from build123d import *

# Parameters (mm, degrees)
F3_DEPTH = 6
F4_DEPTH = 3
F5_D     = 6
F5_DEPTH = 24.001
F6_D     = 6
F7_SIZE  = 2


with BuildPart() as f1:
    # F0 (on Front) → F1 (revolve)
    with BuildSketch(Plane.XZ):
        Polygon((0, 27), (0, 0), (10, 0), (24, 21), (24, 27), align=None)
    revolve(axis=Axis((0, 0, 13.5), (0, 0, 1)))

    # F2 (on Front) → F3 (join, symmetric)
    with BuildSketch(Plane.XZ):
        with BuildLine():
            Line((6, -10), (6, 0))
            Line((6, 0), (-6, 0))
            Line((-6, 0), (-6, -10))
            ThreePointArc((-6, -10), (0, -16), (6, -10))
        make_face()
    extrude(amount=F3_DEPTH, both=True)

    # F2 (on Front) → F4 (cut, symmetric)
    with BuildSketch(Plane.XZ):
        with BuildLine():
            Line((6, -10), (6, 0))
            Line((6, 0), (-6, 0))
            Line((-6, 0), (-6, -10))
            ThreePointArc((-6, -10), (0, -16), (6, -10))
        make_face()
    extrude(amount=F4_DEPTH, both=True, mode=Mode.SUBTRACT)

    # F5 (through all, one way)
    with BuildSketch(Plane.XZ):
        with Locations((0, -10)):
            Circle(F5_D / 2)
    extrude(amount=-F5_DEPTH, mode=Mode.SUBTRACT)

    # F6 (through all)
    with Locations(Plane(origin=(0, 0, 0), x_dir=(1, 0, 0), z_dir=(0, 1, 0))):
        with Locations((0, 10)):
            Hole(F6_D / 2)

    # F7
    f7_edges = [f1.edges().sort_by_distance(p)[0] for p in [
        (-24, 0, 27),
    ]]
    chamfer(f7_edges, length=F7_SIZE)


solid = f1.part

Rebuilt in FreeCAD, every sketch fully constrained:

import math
import FreeCAD as App
import Part
import Sketcher
from FreeCAD import Vector
Q = App.Units.Quantity


def edges_at(feature, points):
    """Names of the edges that pass closest to the given points."""
    edges = feature.Shape.Edges
    near = lambda p: min(range(len(edges)), key=lambda i: edges[i].distToShape(Part.Vertex(*p))[0])
    return sorted({f"Edge{near(p) + 1}" for p in points})


def add_polygon(sketch, points):
    """Adds a closed chain of lines whose ends are joined by coincident constraints."""
    first, n = sketch.GeometryCount, len(points)
    for a, b in zip(points, points[1:] + points[:1]):
        sketch.addGeometry(Part.LineSegment(App.Vector(*a, 0), App.Vector(*b, 0)), False)
    for i in range(n):
        sketch.addConstraint(Sketcher.Constraint("Coincident", first + i, 2, first + (i + 1) % n, 1))

doc = App.newDocument("Part")
body = doc.addObject("PartDesign::Body", "Body")

# Sketch on XZ plane
sketch1 = doc.addObject("Sketcher::SketchObject", "Sketch")
body.addObject(sketch1)
sketch1.AttachmentSupport = (doc.XZ_Plane, [""])
sketch1.MapMode = "FlatFace"
add_polygon(sketch1, [(0, 27), (0, 0), (10, 0), (24, 21), (24, 27)])  # lines 0-4
sketch1.addConstraint([
    Sketcher.Constraint("Vertical", 0),
    Sketcher.Constraint("Horizontal", 1),
    Sketcher.Constraint("Vertical", 3),
    Sketcher.Constraint("Horizontal", 4),
    Sketcher.Constraint("Coincident", 0, 2, -1, 1),
    Sketcher.Constraint("DistanceX", 1, 1, 1, 2, Q("10 mm")),
    Sketcher.Constraint("DistanceX", 4, 2, 4, 1, Q("24 mm")),
    Sketcher.Constraint("DistanceY", 0, 2, 0, 1, Q("27 mm")),
    Sketcher.Constraint("DistanceY", 3, 1, 3, 2, Q("6 mm")),
])
revolution = doc.addObject("PartDesign::Revolution", "Revolution")
body.addObject(revolution)
revolution.Profile = sketch1
revolution.ReferenceAxis = (sketch1, ["V_Axis"])
revolution.Angle = 360

# Sketch on XZ plane
sketch2 = doc.addObject("Sketcher::SketchObject", "Sketch001")
body.addObject(sketch2)
sketch2.AttachmentSupport = (doc.XZ_Plane, [""])
sketch2.MapMode = "FlatFace"
sketch2.addGeometry([
    Part.LineSegment(Vector(6, -10, 0), Vector(6, 0, 0)),
    Part.LineSegment(Vector(6, 0, 0), Vector(-6, 0, 0)),
    Part.LineSegment(Vector(-6, 0, 0), Vector(-6, -10, 0)),
    Part.ArcOfCircle(Part.Circle(Vector(0, -10, 0), Vector(0, 0, 1), 6), math.radians(180), math.radians(360)),
], False)
sketch2.addConstraint([
    Sketcher.Constraint("Coincident", 0, 2, 1, 1),
    Sketcher.Constraint("Coincident", 1, 2, 2, 1),
    Sketcher.Constraint("Tangent", 2, 2, 3, 1),
    Sketcher.Constraint("Tangent", 3, 2, 0, 1),
    Sketcher.Constraint("Vertical", 0),
    Sketcher.Constraint("Horizontal", 1),
    Sketcher.Constraint("Vertical", 2),
    Sketcher.Constraint("Symmetric", 0, 2, 1, 2, -1, 1),
    Sketcher.Constraint("Radius", 3, Q("6 mm")),
    Sketcher.Constraint("DistanceY", 0, 1, 0, 2, Q("10 mm")),
])
pad1 = doc.addObject("PartDesign::Pad", "Pad")
body.addObject(pad1)
pad1.Profile = sketch2
pad1.Length = 12
pad1.Midplane = True

# Sketch on XZ plane
sketch3 = doc.addObject("Sketcher::SketchObject", "Sketch002")
body.addObject(sketch3)
sketch3.AttachmentSupport = (doc.XZ_Plane, [""])
sketch3.MapMode = "FlatFace"
sketch3.addGeometry([
    Part.LineSegment(Vector(6, -10, 0), Vector(6, 0, 0)),
    Part.LineSegment(Vector(6, 0, 0), Vector(-6, 0, 0)),
    Part.LineSegment(Vector(-6, 0, 0), Vector(-6, -10, 0)),
    Part.ArcOfCircle(Part.Circle(Vector(0, -10, 0), Vector(0, 0, 1), 6), math.radians(180), math.radians(360)),
], False)
sketch3.addConstraint([
    Sketcher.Constraint("Coincident", 0, 2, 1, 1),
    Sketcher.Constraint("Coincident", 1, 2, 2, 1),
    Sketcher.Constraint("Tangent", 2, 2, 3, 1),
    Sketcher.Constraint("Tangent", 3, 2, 0, 1),
    Sketcher.Constraint("Vertical", 0),
    Sketcher.Constraint("Horizontal", 1),
    Sketcher.Constraint("Vertical", 2),
    Sketcher.Constraint("Symmetric", 0, 2, 1, 2, -1, 1),
    Sketcher.Constraint("Radius", 3, Q("6 mm")),
    Sketcher.Constraint("DistanceY", 0, 1, 0, 2, Q("10 mm")),
])
pocket1 = doc.addObject("PartDesign::Pocket", "Pocket")
body.addObject(pocket1)
pocket1.Profile = sketch3
pocket1.Length = 6
pocket1.Midplane = True

# Sketch on XZ plane
sketch4 = doc.addObject("Sketcher::SketchObject", "Sketch003")
body.addObject(sketch4)
sketch4.AttachmentSupport = (doc.XZ_Plane, [""])
sketch4.MapMode = "FlatFace"
sketch4.addGeometry(Part.Circle(Vector(0, -10, 0), Vector(0, 0, 1), 3), False)
sketch4.addConstraint([
    Sketcher.Constraint("PointOnObject", 0, 3, -2),
    Sketcher.Constraint("Diameter", 0, Q("6 mm")),
    Sketcher.Constraint("DistanceY", 0, 3, -1, 1, Q("10 mm")),
])
pocket2 = doc.addObject("PartDesign::Pocket", "Pocket001")
body.addObject(pocket2)
pocket2.Profile = sketch4
pocket2.Type = "ThroughAll"

# Sketch on XZ plane
sketch5 = doc.addObject("Sketcher::SketchObject", "Sketch004")
body.addObject(sketch5)
sketch5.AttachmentSupport = (doc.XZ_Plane, [""])
sketch5.MapMode = "FlatFace"
sketch5.addGeometry(Part.Circle(Vector(0, -10, 0), Vector(0, 0, 1), 3), False)
sketch5.addConstraint([
    Sketcher.Constraint("PointOnObject", 0, 3, -2),
    Sketcher.Constraint("Diameter", 0, Q("6 mm")),
    Sketcher.Constraint("DistanceY", 0, 3, -1, 1, Q("10 mm")),
])
doc.recompute()
hole = doc.addObject("PartDesign::Hole", "Hole")
body.addObject(hole)
hole.Profile = sketch5
hole.ThreadType = "None"
hole.Diameter = 6
hole.DepthType = "ThroughAll"
hole.Reversed = True
doc.recompute()

chamfer = doc.addObject("PartDesign::Chamfer", "Chamfer")
body.addObject(chamfer)
chamfer.Base = (hole, edges_at(hole, [(-24, 0, 27)]))
chamfer.Size = 2

doc.recompute()
